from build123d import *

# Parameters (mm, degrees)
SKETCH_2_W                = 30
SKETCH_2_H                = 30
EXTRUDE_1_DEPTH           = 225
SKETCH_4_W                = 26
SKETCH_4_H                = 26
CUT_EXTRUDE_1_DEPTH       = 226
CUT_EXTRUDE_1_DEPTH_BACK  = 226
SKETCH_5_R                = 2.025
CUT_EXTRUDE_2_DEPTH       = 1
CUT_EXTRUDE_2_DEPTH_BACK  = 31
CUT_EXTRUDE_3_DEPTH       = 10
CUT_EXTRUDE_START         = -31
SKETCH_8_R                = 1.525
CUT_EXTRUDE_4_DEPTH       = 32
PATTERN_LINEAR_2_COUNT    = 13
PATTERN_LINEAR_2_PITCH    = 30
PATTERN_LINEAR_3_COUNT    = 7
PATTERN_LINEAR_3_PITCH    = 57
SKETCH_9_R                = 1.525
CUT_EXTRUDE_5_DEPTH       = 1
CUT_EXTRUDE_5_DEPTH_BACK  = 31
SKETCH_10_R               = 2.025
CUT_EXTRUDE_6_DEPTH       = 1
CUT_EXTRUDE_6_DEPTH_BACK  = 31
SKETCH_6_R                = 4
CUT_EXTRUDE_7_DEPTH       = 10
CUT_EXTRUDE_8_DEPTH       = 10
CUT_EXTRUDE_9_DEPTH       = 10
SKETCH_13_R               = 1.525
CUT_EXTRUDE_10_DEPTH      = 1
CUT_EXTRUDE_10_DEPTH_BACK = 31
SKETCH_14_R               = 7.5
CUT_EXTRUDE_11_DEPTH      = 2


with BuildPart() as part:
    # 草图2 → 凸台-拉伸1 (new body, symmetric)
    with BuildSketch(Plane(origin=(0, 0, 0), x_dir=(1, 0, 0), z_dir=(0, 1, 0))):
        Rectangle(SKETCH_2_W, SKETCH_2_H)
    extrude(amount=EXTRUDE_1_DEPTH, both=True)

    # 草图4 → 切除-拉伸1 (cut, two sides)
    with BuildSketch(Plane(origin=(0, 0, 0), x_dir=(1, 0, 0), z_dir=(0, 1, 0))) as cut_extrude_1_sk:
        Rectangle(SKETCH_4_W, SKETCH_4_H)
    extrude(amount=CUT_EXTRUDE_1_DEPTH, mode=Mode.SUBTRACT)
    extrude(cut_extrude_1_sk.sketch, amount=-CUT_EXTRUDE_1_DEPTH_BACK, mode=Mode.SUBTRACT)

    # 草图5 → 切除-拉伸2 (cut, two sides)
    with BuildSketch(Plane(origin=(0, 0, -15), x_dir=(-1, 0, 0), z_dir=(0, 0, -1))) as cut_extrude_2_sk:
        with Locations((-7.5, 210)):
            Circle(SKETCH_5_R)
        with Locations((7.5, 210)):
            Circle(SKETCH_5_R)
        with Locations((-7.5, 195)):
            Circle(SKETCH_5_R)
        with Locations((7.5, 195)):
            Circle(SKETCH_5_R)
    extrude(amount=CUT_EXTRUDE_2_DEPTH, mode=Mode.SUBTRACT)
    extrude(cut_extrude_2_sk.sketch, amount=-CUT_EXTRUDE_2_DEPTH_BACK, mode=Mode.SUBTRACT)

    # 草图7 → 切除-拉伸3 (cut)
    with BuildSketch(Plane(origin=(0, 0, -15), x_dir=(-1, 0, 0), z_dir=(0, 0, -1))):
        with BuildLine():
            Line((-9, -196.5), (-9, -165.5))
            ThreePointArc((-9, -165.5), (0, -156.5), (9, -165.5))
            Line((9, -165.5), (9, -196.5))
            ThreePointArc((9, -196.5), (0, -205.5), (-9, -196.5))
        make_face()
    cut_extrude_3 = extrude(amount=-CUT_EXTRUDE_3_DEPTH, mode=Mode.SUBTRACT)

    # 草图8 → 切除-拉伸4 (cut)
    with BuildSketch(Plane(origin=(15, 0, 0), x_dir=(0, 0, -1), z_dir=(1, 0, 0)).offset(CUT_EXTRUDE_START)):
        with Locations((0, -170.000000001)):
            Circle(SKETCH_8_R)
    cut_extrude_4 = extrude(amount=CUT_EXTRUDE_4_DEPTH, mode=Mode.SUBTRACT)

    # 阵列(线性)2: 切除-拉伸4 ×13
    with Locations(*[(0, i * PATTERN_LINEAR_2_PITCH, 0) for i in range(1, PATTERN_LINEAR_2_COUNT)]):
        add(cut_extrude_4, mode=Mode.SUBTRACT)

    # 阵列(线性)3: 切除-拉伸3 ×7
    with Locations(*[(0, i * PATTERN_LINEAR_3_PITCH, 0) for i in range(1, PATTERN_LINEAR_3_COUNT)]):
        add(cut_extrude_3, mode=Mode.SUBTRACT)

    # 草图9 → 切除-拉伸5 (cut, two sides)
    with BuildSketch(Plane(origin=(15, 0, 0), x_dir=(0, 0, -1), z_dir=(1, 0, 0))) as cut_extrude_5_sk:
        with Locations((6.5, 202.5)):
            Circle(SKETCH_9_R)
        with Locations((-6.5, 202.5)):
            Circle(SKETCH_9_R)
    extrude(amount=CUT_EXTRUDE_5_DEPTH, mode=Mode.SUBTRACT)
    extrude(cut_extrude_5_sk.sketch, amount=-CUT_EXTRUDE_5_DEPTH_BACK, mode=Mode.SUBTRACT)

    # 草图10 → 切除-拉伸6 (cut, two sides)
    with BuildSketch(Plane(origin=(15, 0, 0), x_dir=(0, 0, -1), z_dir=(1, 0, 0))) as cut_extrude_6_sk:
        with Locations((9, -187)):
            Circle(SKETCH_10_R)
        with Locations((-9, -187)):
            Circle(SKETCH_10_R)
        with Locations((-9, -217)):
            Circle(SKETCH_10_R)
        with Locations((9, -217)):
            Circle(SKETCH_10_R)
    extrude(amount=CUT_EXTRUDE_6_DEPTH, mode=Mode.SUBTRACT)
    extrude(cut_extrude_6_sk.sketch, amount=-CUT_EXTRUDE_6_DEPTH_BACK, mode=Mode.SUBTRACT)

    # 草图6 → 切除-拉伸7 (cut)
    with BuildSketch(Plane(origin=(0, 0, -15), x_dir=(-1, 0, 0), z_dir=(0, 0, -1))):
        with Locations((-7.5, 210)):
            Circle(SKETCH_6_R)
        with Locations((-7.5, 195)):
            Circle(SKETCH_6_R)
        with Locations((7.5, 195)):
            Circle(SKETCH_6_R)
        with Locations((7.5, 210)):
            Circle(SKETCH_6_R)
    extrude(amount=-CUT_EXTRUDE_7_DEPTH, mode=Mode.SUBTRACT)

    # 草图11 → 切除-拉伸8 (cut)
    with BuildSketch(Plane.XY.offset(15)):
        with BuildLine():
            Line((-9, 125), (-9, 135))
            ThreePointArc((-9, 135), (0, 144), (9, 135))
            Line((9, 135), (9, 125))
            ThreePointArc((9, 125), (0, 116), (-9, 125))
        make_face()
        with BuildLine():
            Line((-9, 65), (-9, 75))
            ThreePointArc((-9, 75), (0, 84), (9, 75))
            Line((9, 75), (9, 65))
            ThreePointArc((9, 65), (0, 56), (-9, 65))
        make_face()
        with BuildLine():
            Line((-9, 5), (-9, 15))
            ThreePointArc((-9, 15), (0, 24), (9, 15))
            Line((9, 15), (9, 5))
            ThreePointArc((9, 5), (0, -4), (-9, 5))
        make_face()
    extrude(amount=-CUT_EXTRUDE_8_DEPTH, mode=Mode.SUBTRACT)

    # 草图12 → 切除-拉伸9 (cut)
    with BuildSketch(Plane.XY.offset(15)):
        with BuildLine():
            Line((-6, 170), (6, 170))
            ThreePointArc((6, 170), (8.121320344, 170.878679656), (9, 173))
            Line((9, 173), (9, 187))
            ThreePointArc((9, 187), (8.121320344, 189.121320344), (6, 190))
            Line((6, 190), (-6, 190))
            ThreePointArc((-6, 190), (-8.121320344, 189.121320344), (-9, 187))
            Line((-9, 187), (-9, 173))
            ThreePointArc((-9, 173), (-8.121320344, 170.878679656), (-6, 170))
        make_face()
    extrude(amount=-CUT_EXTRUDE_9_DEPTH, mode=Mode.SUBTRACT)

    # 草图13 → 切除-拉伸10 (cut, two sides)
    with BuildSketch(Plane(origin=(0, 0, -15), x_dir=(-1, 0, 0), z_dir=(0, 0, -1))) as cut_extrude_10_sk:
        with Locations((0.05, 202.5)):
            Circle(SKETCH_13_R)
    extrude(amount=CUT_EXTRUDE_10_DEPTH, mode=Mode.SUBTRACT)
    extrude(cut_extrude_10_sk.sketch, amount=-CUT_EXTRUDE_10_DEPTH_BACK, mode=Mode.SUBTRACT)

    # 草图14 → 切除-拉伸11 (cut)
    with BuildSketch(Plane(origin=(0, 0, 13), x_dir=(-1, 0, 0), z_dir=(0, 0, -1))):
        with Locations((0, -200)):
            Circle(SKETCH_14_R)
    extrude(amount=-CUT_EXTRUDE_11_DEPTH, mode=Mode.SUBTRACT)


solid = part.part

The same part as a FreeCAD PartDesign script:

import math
import FreeCAD as App
import Part
import Sketcher
from FreeCAD import Vector

doc = App.newDocument("Part")
body = doc.addObject("PartDesign::Body", "Body")

# Sketch on XZ plane
sketch1 = body.newObject("Sketcher::SketchObject", "Sketch")
sketch1.AttachmentSupport = (doc.getObject("XZ_Plane"), [""])
sketch1.MapMode = "FlatFace"
sketch1.addGeometry([
    Part.LineSegment(Vector(-15, -15, 0), Vector(-15, 15, 0)),
    Part.LineSegment(Vector(-15, 15, 0), Vector(15, 15, 0)),
    Part.LineSegment(Vector(15, 15, 0), Vector(15, -15, 0)),
    Part.LineSegment(Vector(15, -15, 0), Vector(-15, -15, 0)),
], False)
sketch1.addConstraint([
    Sketcher.Constraint("Coincident", 0, 2, 1, 1),
    Sketcher.Constraint("Coincident", 1, 2, 2, 1),
    Sketcher.Constraint("Coincident", 2, 2, 3, 1),
    Sketcher.Constraint("Coincident", 3, 2, 0, 1),
    Sketcher.Constraint("Vertical", 0),
    Sketcher.Constraint("Horizontal", 1),
    Sketcher.Constraint("Vertical", 2),
    Sketcher.Constraint("Horizontal", 3),
    Sketcher.Constraint("Symmetric", 0, 2, 2, 2, -1, 1),
    Sketcher.Constraint("Equal", 3, 0),
    Sketcher.Constraint("DistanceX", 1, 1, 1, 2, 30.0),
])
pad1 = body.newObject("PartDesign::Pad", "Pad")
pad1.Profile = sketch1
pad1.Length = 450
pad1.Midplane = True

# Sketch on XZ plane
sketch2 = body.newObject("Sketcher::SketchObject", "Sketch001")
sketch2.AttachmentSupport = (doc.getObject("XZ_Plane"), [""])
sketch2.MapMode = "FlatFace"
sketch2.addGeometry([
    Part.LineSegment(Vector(-13, -13, 0), Vector(-13, 13, 0)),
    Part.LineSegment(Vector(-13, 13, 0), Vector(13, 13, 0)),
    Part.LineSegment(Vector(13, 13, 0), Vector(13, -13, 0)),
    Part.LineSegment(Vector(13, -13, 0), Vector(-13, -13, 0)),
], False)
sketch2.addConstraint([
    Sketcher.Constraint("Coincident", 0, 2, 1, 1),
    Sketcher.Constraint("Coincident", 1, 2, 2, 1),
    Sketcher.Constraint("Coincident", 2, 2, 3, 1),
    Sketcher.Constraint("Coincident", 3, 2, 0, 1),
    Sketcher.Constraint("Vertical", 0),
    Sketcher.Constraint("Horizontal", 1),
    Sketcher.Constraint("Vertical", 2),
    Sketcher.Constraint("Horizontal", 3),
    Sketcher.Constraint("Symmetric", 0, 2, 2, 2, -1, 1),
    Sketcher.Constraint("Equal", 3, 0),
    Sketcher.Constraint("DistanceX", 1, 1, 1, 2, 26.0),
])
pocket1 = body.newObject("PartDesign::Pocket", "Pocket")
pocket1.Profile = sketch2
pocket1.Type = "ThroughAll"
pocket1.Midplane = True

# Sketch on XY plane
sketch3 = body.newObject("Sketcher::SketchObject", "Sketch002")
sketch3.AttachmentSupport = (doc.getObject("XY_Plane"), [""])
sketch3.MapMode = "FlatFace"
sketch3.AttachmentOffset = App.Placement(Vector(0, 0, -15), App.Rotation())
sketch3.addGeometry([
    Part.Circle(Vector(7.5, 210, 0), Vector(0, 0, 1), 2),
    Part.Circle(Vector(-7.5, 210, 0), Vector(0, 0, 1), 2),
    Part.Circle(Vector(7.5, 195, 0), Vector(0, 0, 1), 2),
    Part.Circle(Vector(-7.5, 195, 0), Vector(0, 0, 1), 2),
], False)
sketch3.addConstraint([
    Sketcher.Constraint("Equal", 0, 1),
    Sketcher.Constraint("Equal", 1, 2),
    Sketcher.Constraint("Equal", 2, 3),
    Sketcher.Constraint("Symmetric", 0, 3, 1, 3, -2),
    Sketcher.Constraint("Symmetric", 2, 3, 3, 3, -2),
    Sketcher.Constraint("Vertical", 0, 3, 2, 3),
    Sketcher.Constraint("Diameter", 0, 4.05),
    Sketcher.Constraint("DistanceY", -1, 1, 0, 3, 210.0),
    Sketcher.Constraint("DistanceY", -1, 1, 2, 3, 195.0),
    Sketcher.Constraint("DistanceX", 1, 3, 0, 3, 15.0),
])
pocket2 = body.newObject("PartDesign::Pocket", "Pocket001")
pocket2.Profile = sketch3
pocket2.Type = "ThroughAll"
pocket2.Midplane = True

# Sketch on XY plane
sketch4 = body.newObject("Sketcher::SketchObject", "Sketch003")
sketch4.AttachmentSupport = (doc.getObject("XY_Plane"), [""])
sketch4.MapMode = "FlatFace"
sketch4.AttachmentOffset = App.Placement(Vector(0, 0, -15), App.Rotation())
sketch4.addGeometry([
    Part.LineSegment(Vector(9, -166, 0), Vector(9, -196, 0)),
    Part.ArcOfCircle(Part.Circle(Vector(0, -196, 0), Vector(0, 0, 1), 9), math.radians(180), math.radians(360)),
    Part.LineSegment(Vector(-9, -196, 0), Vector(-9, -166, 0)),
    Part.ArcOfCircle(Part.Circle(Vector(0, -166, 0), Vector(0, 0, 1), 9), math.radians(0), math.radians(180)),
], False)
sketch4.addConstraint([
    Sketcher.Constraint("Tangent", 0, 2, 1, 2),
    Sketcher.Constraint("Tangent", 1, 1, 2, 1),
    Sketcher.Constraint("Tangent", 2, 2, 3, 2),
    Sketcher.Constraint("Tangent", 3, 1, 0, 1),
    Sketcher.Constraint("Vertical", 0),
    Sketcher.Constraint("Vertical", 2),
    Sketcher.Constraint("PointOnObject", 1, 3, -2),
    Sketcher.Constraint("Radius", 1, 9.0),
    Sketcher.Constraint("DistanceY", 0, 2, 0, 1, 31.0),
    Sketcher.Constraint("DistanceY", 1, 3, -1, 1, 196.5),
])
pocket3 = body.newObject("PartDesign::Pocket", "Pocket002")
pocket3.Profile = sketch4
pocket3.Length = 10
pocket3.Reversed = True

# Sketch on YZ plane
sketch5 = body.newObject("Sketcher::SketchObject", "Sketch004")
sketch5.AttachmentSupport = (doc.getObject("YZ_Plane"), [""])
sketch5.MapMode = "FlatFace"
sketch5.AttachmentOffset = App.Placement(Vector(0, 0, -16), App.Rotation())
sketch5.addGeometry(Part.Circle(Vector(-170, 0, 0), Vector(0, 0, 1), 1.5), False)
sketch5.addConstraint([
    Sketcher.Constraint("PointOnObject", 0, 3, -1),
    Sketcher.Constraint("Diameter", 0, 3.05),
    Sketcher.Constraint("DistanceX", 0, 3, -1, 1, 170.0),
])
pocket4 = body.newObject("PartDesign::Pocket", "Pocket003")
pocket4.Profile = sketch5
pocket4.Length = 32
pocket4.Reversed = True
doc.recompute()

linearpattern = body.newObject("PartDesign::LinearPattern", "LinearPattern")
linearpattern.Originals = [pocket4]
linearpattern.Direction = (doc.getObject("Y_Axis"), [""])
linearpattern.Mode = "offset"
linearpattern.Offset = 30
linearpattern.Occurrences = 13
body.Tip = linearpattern
doc.recompute()

linearpattern2 = body.newObject("PartDesign::LinearPattern", "LinearPattern001")
linearpattern2.Originals = [pocket3]
linearpattern2.Direction = (doc.getObject("Y_Axis"), [""])
linearpattern2.Mode = "offset"
linearpattern2.Offset = 57
linearpattern2.Occurrences = 7
body.Tip = linearpattern2

# Sketch on YZ plane
sketch6 = body.newObject("Sketcher::SketchObject", "Sketch005")
sketch6.AttachmentSupport = (doc.getObject("YZ_Plane"), [""])
sketch6.MapMode = "FlatFace"
sketch6.AttachmentOffset = App.Placement(Vector(0, 0, 15), App.Rotation())
sketch6.addGeometry([
    Part.Circle(Vector(202.5, -6.5, 0), Vector(0, 0, 1), 1.5),
    Part.Circle(Vector(202.5, 6.5, 0), Vector(0, 0, 1), 1.5),
], False)
sketch6.addConstraint([
    Sketcher.Constraint("Equal", 0, 1),
    Sketcher.Constraint("Symmetric", 0, 3, 1, 3, -1),
    Sketcher.Constraint("Diameter", 0, 3.05),
    Sketcher.Constraint("DistanceY", 0, 3, 1, 3, 13.0),
    Sketcher.Constraint("DistanceX", -1, 1, 0, 3, 202.5),
])
pocket5 = body.newObject("PartDesign::Pocket", "Pocket004")
pocket5.Profile = sketch6
pocket5.Type = "ThroughAll"
pocket5.Midplane = True

# Sketch on YZ plane
sketch7 = body.newObject("Sketcher::SketchObject", "Sketch006")
sketch7.AttachmentSupport = (doc.getObject("YZ_Plane"), [""])
sketch7.MapMode = "FlatFace"
sketch7.AttachmentOffset = App.Placement(Vector(0, 0, 15), App.Rotation())
sketch7.addGeometry([
    Part.Circle(Vector(-187, -9, 0), Vector(0, 0, 1), 2),
    Part.Circle(Vector(-187, 9, 0), Vector(0, 0, 1), 2),
    Part.Circle(Vector(-217, 9, 0), Vector(0, 0, 1), 2),
    Part.Circle(Vector(-217, -9, 0), Vector(0, 0, 1), 2),
], False)
sketch7.addConstraint([
    Sketcher.Constraint("Equal", 0, 1),
    Sketcher.Constraint("Equal", 1, 2),
    Sketcher.Constraint("Equal", 2, 3),
    Sketcher.Constraint("Symmetric", 0, 3, 1, 3, -1),
    Sketcher.Constraint("Symmetric", 2, 3, 3, 3, -1),
    Sketcher.Constraint("Horizontal", 1, 3, 2, 3),
    Sketcher.Constraint("Diameter", 0, 4.05),
    Sketcher.Constraint("DistanceX", 0, 3, -1, 1, 187.0),
    Sketcher.Constraint("DistanceY", 0, 3, -1, 1, 9.0),
    Sketcher.Constraint("DistanceX", 2, 3, -1, 1, 217.0),
])
pocket6 = body.newObject("PartDesign::Pocket", "Pocket005")
pocket6.Profile = sketch7
pocket6.Type = "ThroughAll"
pocket6.Midplane = True

# Sketch on XY plane
sketch8 = body.newObject("Sketcher::SketchObject", "Sketch007")
sketch8.AttachmentSupport = (doc.getObject("XY_Plane"), [""])
sketch8.MapMode = "FlatFace"
sketch8.AttachmentOffset = App.Placement(Vector(0, 0, -15), App.Rotation())
sketch8.addGeometry([
    Part.Circle(Vector(7.5, 210, 0), Vector(0, 0, 1), 4),
    Part.Circle(Vector(7.5, 195, 0), Vector(0, 0, 1), 4),
    Part.Circle(Vector(-7.5, 195, 0), Vector(0, 0, 1), 4),
    Part.Circle(Vector(-7.5, 210, 0), Vector(0, 0, 1), 4),
], False)
sketch8.addConstraint([
    Sketcher.Constraint("Equal", 0, 1),
    Sketcher.Constraint("Equal", 1, 2),
    Sketcher.Constraint("Equal", 2, 3),
    Sketcher.Constraint("Symmetric", 1, 3, 2, 3, -2),
    Sketcher.Constraint("Symmetric", 0, 3, 3, 3, -2),
    Sketcher.Constraint("Vertical", 0, 3, 1, 3),
    Sketcher.Constraint("Diameter", 0, 8.0),
    Sketcher.Constraint("DistanceY", -1, 1, 0, 3, 210.0),
    Sketcher.Constraint("DistanceY", -1, 1, 1, 3, 195.0),
    Sketcher.Constraint("DistanceX", 2, 3, 1, 3, 15.0),
])
pocket7 = body.newObject("PartDesign::Pocket", "Pocket006")
pocket7.Profile = sketch8
pocket7.Length = 10
pocket7.Reversed = True

# Sketch on XY plane
sketch9 = body.newObject("Sketcher::SketchObject", "Sketch008")
sketch9.AttachmentSupport = (doc.getObject("XY_Plane"), [""])
sketch9.MapMode = "FlatFace"
sketch9.AttachmentOffset = App.Placement(Vector(0, 0, 15), App.Rotation())
sketch9.addGeometry([
    Part.LineSegment(Vector(-9, 135, 0), Vector(-9, 125, 0)),  # 0
    Part.ArcOfCircle(Part.Circle(Vector(0, 125, 0), Vector(0, 0, 1), 9), math.radians(180), math.radians(360)),  # 1
    Part.LineSegment(Vector(9, 125, 0), Vector(9, 135, 0)),  # 2
    Part.ArcOfCircle(Part.Circle(Vector(0, 135, 0), Vector(0, 0, 1), 9), math.radians(0), math.radians(180)),  # 3
    Part.LineSegment(Vector(-9, 75, 0), Vector(-9, 65, 0)),  # 4
    Part.ArcOfCircle(Part.Circle(Vector(0, 65, 0), Vector(0, 0, 1), 9), math.radians(180), math.radians(360)),  # 5
    Part.LineSegment(Vector(9, 65, 0), Vector(9, 75, 0)),  # 6
    Part.ArcOfCircle(Part.Circle(Vector(0, 75, 0), Vector(0, 0, 1), 9), math.radians(0), math.radians(180)),  # 7
    Part.LineSegment(Vector(-9, 15, 0), Vector(-9, 5, 0)),  # 8
    Part.ArcOfCircle(Part.Circle(Vector(0, 5, 0), Vector(0, 0, 1), 9), math.radians(180), math.radians(360)),  # 9
    Part.LineSegment(Vector(9, 5, 0), Vector(9, 15, 0)),  # 10
    Part.ArcOfCircle(Part.Circle(Vector(0, 15, 0), Vector(0, 0, 1), 9), math.radians(0), math.radians(180)),  # 11
], False)
sketch9.addConstraint([
    Sketcher.Constraint("Tangent", 0, 2, 1, 1),
    Sketcher.Constraint("Tangent", 1, 2, 2, 1),
    Sketcher.Constraint("Tangent", 2, 2, 3, 1),
    Sketcher.Constraint("Tangent", 3, 2, 0, 1),
    Sketcher.Constraint("Tangent", 4, 2, 5, 1),
    Sketcher.Constraint("Tangent", 5, 2, 6, 1),
    Sketcher.Constraint("Tangent", 6, 2, 7, 1),
    Sketcher.Constraint("Tangent", 7, 2, 4, 1),
    Sketcher.Constraint("Tangent", 8, 2, 9, 1),
    Sketcher.Constraint("Tangent", 9, 2, 10, 1),
    Sketcher.Constraint("Tangent", 10, 2, 11, 1),
    Sketcher.Constraint("Tangent", 11, 2, 8, 1),
    Sketcher.Constraint("Vertical", 0),
    Sketcher.Constraint("Vertical", 2),
    Sketcher.Constraint("Vertical", 4),
    Sketcher.Constraint("Vertical", 6),
    Sketcher.Constraint("Vertical", 8),
    Sketcher.Constraint("Vertical", 10),
    Sketcher.Constraint("Equal", 3, 5),
    Sketcher.Constraint("Equal", 7, 9),
    Sketcher.Constraint("PointOnObject", 1, 3, -2),
    Sketcher.Constraint("PointOnObject", 5, 3, -2),
    Sketcher.Constraint("PointOnObject", 9, 3, -2),
    Sketcher.Constraint("Equal", 2, 4),
    Sketcher.Constraint("Equal", 6, 8),
    Sketcher.Constraint("Radius", 1, 9.0),
    Sketcher.Constraint("DistanceY", 0, 2, 0, 1, 10.0),
    Sketcher.Constraint("DistanceY", -1, 1, 1, 3, 125.0),
    Sketcher.Constraint("DistanceY", -1, 1, 5, 3, 65.0),
    Sketcher.Constraint("DistanceY", -1, 1, 9, 3, 5.0),
])
pocket8 = body.newObject("PartDesign::Pocket", "Pocket007")
pocket8.Profile = sketch9
pocket8.Length = 10

# Sketch on XY plane
sketch10 = body.newObject("Sketcher::SketchObject", "Sketch009")
sketch10.AttachmentSupport = (doc.getObject("XY_Plane"), [""])
sketch10.MapMode = "FlatFace"
sketch10.AttachmentOffset = App.Placement(Vector(0, 0, 15), App.Rotation())
sketch10.addGeometry([
    Part.LineSegment(Vector(-6, 170, 0), Vector(6, 170, 0)),  # 0
    Part.ArcOfCircle(Part.Circle(Vector(6, 173, 0), Vector(0, 0, 1), 3), math.radians(-90), math.radians(0)),  # 1
    Part.LineSegment(Vector(9, 173, 0), Vector(9, 187, 0)),  # 2
    Part.ArcOfCircle(Part.Circle(Vector(6, 187, 0), Vector(0, 0, 1), 3), math.radians(0), math.radians(90)),  # 3
    Part.LineSegment(Vector(6, 190, 0), Vector(-6, 190, 0)),  # 4
    Part.ArcOfCircle(Part.Circle(Vector(-6, 187, 0), Vector(0, 0, 1), 3), math.radians(90), math.radians(180)),  # 5
    Part.LineSegment(Vector(-9, 187, 0), Vector(-9, 173, 0)),  # 6
    Part.ArcOfCircle(Part.Circle(Vector(-6, 173, 0), Vector(0, 0, 1), 3), math.radians(180), math.radians(270)),  # 7
], False)
sketch10.addConstraint([
    Sketcher.Constraint("Tangent", 0, 2, 1, 1),
    Sketcher.Constraint("Tangent", 1, 2, 2, 1),
    Sketcher.Constraint("Tangent", 2, 2, 3, 1),
    Sketcher.Constraint("Tangent", 3, 2, 4, 1),
    Sketcher.Constraint("Tangent", 4, 2, 5, 1),
    Sketcher.Constraint("Tangent", 5, 2, 6, 1),
    Sketcher.Constraint("Tangent", 6, 2, 7, 1),
    Sketcher.Constraint("Tangent", 7, 2, 0, 1),
    Sketcher.Constraint("Horizontal", 0),
    Sketcher.Constraint("Vertical", 2),
    Sketcher.Constraint("Horizontal", 4),
    Sketcher.Constraint("Vertical", 6),
    Sketcher.Constraint("Equal", 1, 3),
    Sketcher.Constraint("Equal", 3, 5),
    Sketcher.Constraint("Equal", 5, 7),
    Sketcher.Constraint("Radius", 1, 3.0),
    Sketcher.Constraint("DistanceX", 0, 1, 0, 2, 12.0),
    Sketcher.Constraint("DistanceY", 2, 1, 2, 2, 14.0),
    Sketcher.Constraint("DistanceX", -1, 1, 1, 3, 6.0),
    Sketcher.Constraint("DistanceY", -1, 1, 1, 3, 173.0),
])
pocket9 = body.newObject("PartDesign::Pocket", "Pocket008")
pocket9.Profile = sketch10
pocket9.Length = 10

# Sketch on XY plane
sketch11 = body.newObject("Sketcher::SketchObject", "Sketch010")
sketch11.AttachmentSupport = (doc.getObject("XY_Plane"), [""])
sketch11.MapMode = "FlatFace"
sketch11.AttachmentOffset = App.Placement(Vector(0, 0, -15), App.Rotation())
sketch11.addGeometry(Part.Circle(Vector(-0.1, 202.5, 0), Vector(0, 0, 1), 1.5), False)
sketch11.addConstraint([
    Sketcher.Constraint("Diameter", 0, 3.05),
    Sketcher.Constraint("DistanceY", -1, 1, 0, 3, 202.5),
    Sketcher.Constraint("DistanceX", 0, 3, -1, 1, 0.05),
])
pocket10 = body.newObject("PartDesign::Pocket", "Pocket009")
pocket10.Profile = sketch11
pocket10.Type = "ThroughAll"
pocket10.Midplane = True

# Sketch on XY plane
sketch12 = body.newObject("Sketcher::SketchObject", "Sketch011")
sketch12.AttachmentSupport = (doc.getObject("XY_Plane"), [""])
sketch12.MapMode = "FlatFace"
sketch12.AttachmentOffset = App.Placement(Vector(0, 0, 13), App.Rotation())
sketch12.addGeometry(Part.Circle(Vector(0, -200, 0), Vector(0, 0, 1), 8), False)
sketch12.addConstraint([
    Sketcher.Constraint("PointOnObject", 0, 3, -2),
    Sketcher.Constraint("Diameter", 0, 15.0),
    Sketcher.Constraint("DistanceY", 0, 3, -1, 1, 200.0),
])
pocket11 = body.newObject("PartDesign::Pocket", "Pocket010")
pocket11.Profile = sketch12
pocket11.Length = 2
pocket11.Reversed = True

doc.recompute()
